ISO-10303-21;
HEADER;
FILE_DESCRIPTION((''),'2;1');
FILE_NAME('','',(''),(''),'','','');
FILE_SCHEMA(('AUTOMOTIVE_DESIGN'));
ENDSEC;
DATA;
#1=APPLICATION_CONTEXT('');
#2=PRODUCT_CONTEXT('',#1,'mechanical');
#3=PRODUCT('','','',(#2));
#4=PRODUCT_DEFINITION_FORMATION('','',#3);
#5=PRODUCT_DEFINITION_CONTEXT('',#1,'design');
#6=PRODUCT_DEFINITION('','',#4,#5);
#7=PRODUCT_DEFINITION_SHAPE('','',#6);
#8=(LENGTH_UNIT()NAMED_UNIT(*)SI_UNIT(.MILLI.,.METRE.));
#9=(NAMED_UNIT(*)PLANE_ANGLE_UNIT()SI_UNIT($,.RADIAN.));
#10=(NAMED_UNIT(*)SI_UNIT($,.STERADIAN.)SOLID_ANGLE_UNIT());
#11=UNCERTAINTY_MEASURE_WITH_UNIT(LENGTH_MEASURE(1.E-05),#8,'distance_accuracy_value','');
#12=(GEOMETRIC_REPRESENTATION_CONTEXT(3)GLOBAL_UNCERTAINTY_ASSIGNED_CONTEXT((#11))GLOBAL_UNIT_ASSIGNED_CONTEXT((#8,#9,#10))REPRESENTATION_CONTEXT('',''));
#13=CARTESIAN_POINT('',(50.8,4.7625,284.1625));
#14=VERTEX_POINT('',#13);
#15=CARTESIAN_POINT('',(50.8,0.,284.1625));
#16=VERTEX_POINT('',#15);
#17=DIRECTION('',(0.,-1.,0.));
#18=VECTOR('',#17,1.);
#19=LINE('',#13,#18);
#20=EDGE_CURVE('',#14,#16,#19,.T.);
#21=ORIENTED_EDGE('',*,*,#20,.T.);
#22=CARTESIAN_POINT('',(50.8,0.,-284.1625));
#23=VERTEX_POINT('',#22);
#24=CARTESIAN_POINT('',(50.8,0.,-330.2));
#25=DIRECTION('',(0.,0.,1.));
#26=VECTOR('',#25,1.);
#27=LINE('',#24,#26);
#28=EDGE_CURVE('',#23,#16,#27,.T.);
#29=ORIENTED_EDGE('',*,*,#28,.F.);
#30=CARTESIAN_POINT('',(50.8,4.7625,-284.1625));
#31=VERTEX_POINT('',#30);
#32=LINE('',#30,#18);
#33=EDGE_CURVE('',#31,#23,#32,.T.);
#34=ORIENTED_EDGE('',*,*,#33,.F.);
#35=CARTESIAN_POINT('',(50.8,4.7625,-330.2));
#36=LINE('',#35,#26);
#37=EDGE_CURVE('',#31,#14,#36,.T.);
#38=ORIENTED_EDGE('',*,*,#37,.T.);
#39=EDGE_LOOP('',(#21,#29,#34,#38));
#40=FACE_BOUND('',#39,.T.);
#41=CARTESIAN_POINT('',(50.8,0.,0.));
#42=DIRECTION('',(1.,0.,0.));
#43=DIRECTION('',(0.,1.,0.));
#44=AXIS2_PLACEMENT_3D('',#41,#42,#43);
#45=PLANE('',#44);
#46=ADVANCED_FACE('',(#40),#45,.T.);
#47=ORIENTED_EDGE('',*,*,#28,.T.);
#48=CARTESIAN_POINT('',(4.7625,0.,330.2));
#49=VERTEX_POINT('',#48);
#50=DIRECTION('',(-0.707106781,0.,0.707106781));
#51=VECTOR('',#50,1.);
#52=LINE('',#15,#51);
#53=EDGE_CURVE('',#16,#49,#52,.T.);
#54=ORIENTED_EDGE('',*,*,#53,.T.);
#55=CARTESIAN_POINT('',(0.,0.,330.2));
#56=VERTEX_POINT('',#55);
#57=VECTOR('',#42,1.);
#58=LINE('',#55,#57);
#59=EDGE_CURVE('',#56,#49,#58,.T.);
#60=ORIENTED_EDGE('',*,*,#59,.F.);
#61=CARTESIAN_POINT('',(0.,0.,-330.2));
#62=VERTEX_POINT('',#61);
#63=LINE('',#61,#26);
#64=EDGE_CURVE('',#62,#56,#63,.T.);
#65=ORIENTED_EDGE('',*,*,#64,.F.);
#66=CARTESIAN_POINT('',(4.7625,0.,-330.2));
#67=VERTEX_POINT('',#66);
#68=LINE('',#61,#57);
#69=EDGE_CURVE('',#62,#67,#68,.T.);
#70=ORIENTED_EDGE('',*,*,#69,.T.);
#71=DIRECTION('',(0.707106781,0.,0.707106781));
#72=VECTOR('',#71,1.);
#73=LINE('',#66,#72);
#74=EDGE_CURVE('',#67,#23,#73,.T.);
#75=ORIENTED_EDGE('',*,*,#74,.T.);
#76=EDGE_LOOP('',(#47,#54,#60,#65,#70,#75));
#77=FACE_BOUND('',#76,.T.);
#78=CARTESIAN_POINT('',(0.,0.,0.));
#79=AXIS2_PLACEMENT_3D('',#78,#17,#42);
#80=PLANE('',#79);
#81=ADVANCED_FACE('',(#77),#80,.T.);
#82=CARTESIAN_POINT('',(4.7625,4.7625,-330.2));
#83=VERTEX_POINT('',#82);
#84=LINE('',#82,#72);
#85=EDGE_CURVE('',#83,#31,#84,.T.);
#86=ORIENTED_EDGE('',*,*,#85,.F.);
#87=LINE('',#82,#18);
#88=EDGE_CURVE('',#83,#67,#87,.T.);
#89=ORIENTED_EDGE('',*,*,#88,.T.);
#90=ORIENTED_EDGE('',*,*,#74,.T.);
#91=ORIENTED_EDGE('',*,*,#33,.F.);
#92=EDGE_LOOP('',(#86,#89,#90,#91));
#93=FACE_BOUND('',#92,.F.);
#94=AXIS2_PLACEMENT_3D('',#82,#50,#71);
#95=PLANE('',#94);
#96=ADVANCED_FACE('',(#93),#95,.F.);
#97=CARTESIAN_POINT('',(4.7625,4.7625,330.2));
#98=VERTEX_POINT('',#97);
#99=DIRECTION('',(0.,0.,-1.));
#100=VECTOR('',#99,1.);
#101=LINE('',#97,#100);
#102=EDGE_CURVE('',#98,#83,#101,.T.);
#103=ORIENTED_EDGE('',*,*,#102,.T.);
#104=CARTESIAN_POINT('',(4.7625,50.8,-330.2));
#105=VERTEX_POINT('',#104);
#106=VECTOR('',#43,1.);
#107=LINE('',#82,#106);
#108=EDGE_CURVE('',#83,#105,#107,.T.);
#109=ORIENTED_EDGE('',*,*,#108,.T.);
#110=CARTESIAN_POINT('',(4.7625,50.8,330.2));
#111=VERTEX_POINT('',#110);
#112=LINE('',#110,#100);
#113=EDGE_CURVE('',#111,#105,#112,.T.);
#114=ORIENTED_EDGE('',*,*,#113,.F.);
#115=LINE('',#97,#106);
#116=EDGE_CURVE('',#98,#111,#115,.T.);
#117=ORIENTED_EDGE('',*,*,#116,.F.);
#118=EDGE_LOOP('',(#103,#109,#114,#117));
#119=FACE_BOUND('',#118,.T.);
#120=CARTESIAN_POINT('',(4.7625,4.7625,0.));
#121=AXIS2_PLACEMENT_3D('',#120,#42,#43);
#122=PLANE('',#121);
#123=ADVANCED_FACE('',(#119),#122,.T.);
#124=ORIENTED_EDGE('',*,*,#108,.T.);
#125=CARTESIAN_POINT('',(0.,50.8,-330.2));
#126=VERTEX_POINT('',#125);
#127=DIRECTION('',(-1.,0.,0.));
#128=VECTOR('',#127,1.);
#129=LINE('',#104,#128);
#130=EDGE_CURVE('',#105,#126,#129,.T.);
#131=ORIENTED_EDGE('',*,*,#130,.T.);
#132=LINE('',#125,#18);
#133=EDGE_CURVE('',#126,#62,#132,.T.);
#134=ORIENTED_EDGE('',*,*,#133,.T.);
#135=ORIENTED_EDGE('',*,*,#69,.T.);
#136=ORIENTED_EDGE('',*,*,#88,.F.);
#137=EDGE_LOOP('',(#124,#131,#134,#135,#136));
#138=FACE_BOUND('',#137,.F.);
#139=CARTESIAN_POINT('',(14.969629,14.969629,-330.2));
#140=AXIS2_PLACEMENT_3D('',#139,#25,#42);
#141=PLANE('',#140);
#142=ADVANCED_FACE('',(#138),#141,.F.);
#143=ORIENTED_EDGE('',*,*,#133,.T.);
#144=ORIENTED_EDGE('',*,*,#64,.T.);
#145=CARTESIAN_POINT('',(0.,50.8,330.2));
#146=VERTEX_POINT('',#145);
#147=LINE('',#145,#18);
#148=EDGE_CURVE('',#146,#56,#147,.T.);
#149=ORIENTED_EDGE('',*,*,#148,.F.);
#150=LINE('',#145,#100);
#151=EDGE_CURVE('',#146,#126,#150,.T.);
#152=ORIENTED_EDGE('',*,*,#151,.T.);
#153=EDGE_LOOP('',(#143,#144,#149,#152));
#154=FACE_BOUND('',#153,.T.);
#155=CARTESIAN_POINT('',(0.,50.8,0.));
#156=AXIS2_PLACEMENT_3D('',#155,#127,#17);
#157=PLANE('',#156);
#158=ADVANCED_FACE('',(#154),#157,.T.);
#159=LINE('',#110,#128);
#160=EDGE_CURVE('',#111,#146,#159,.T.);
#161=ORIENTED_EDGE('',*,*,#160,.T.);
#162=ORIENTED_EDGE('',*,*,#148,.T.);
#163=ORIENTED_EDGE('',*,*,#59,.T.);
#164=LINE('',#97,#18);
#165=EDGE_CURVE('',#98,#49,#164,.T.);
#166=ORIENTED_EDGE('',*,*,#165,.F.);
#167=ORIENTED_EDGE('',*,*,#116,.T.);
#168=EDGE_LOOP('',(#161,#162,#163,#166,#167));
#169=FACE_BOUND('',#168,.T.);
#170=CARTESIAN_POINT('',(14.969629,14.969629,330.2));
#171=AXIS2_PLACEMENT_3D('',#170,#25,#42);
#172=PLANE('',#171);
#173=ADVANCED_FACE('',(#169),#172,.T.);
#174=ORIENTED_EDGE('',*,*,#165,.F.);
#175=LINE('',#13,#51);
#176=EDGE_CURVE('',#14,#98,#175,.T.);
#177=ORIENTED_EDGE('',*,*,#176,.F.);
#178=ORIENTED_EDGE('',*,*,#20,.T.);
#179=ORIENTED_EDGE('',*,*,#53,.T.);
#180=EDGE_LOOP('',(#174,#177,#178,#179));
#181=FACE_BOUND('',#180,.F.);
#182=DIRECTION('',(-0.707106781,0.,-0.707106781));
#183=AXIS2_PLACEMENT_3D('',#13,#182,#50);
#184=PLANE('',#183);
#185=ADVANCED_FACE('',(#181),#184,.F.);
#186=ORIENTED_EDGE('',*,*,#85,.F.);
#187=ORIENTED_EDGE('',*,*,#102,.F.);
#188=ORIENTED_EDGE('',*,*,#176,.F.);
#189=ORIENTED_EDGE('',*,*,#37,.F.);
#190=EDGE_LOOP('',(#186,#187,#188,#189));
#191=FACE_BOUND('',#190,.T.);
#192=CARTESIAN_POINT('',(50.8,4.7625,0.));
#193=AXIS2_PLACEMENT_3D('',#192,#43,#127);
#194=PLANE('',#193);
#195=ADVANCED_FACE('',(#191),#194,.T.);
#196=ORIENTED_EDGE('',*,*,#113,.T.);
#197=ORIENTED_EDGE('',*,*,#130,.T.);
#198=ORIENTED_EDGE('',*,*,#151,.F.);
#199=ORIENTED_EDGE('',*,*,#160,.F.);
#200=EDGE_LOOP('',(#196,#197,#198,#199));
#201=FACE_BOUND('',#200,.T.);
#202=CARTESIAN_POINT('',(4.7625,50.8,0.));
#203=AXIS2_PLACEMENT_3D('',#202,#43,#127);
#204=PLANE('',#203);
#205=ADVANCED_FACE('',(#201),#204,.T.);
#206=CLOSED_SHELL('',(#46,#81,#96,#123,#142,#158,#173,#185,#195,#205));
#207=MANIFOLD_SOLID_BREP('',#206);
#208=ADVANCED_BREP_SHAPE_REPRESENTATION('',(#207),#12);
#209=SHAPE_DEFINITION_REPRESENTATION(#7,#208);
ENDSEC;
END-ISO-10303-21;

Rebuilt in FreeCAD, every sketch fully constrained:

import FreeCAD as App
import Part
import Sketcher

V = App.Vector
Q = App.Units.Quantity


def add_polygon(sketch, points):
    """Adds a closed chain of lines whose ends are joined by coincident constraints."""
    first, n = sketch.GeometryCount, len(points)
    for a, b in zip(points, points[1:] + points[:1]):
        sketch.addGeometry(Part.LineSegment(App.Vector(*a, 0), App.Vector(*b, 0)), False)
    for i in range(n):
        sketch.addConstraint(Sketcher.Constraint("Coincident", first + i, 2, first + (i + 1) % n, 1))

doc = App.newDocument("Part")
body = doc.addObject("PartDesign::Body", "Body")

# Sketch on XY plane
sketch1 = body.newObject("Sketcher::SketchObject", "Sketch")
sketch1.AttachmentSupport = (doc.getObject("XY_Plane"), [""])
sketch1.MapMode = "FlatFace"
add_polygon(sketch1, [(0, 50.8), (0, 0), (50.8, 0), (50.8, 4.8), (4.8, 4.8), (4.8, 50.8)])  # lines 0-5
sketch1.addConstraint([
    Sketcher.Constraint("Vertical", 0),
    Sketcher.Constraint("Horizontal", 1),
    Sketcher.Constraint("Vertical", 2),
    Sketcher.Constraint("Horizontal", 3),
    Sketcher.Constraint("Vertical", 4),
    Sketcher.Constraint("Horizontal", 5),
    Sketcher.Constraint("Coincident", 0, 2, -1, 1),
    Sketcher.Constraint("Equal", 1, 0),
    Sketcher.Constraint("Equal", 5, 2),
    Sketcher.Constraint("DistanceX", 1, 1, 1, 2, Q("2 in")),
    Sketcher.Constraint("DistanceX", 3, 2, 3, 1, Q("1.8125 in")),
])
pad1 = body.newObject("PartDesign::Pad", "Pad")
pad1.Profile = sketch1
pad1.Length = Q("26 in")
pad1.Midplane = True

# Sketch on XZ plane
sketch2 = body.newObject("Sketcher::SketchObject", "Sketch001")
sketch2.AttachmentSupport = (doc.getObject("XZ_Plane"), [""])
sketch2.MapMode = "FlatFace"
sketch2.AttachmentOffset = App.Placement(V(0, 0, -0.1875 * 25.4), App.Rotation())
add_polygon(sketch2, [(51, 284), (5, 330), (51, 330)])  # lines 0-2
add_polygon(sketch2, [(51, -330), (5, -330), (51, -284)])  # lines 3-5
sketch2.addConstraint([
    Sketcher.Constraint("Horizontal", 1),
    Sketcher.Constraint("Vertical", 2),
    Sketcher.Constraint("Horizontal", 3),
    Sketcher.Constraint("Vertical", 5),
    Sketcher.Constraint("Symmetric", 0, 2, 3, 2, -1),
    Sketcher.Constraint("Symmetric", 2, 2, 4, 2, -1),
    Sketcher.Constraint("Perpendicular", 0, 4),
    Sketcher.Constraint("DistanceY", -1, 1, 0, 2, Q("13 in")),
    Sketcher.Constraint("DistanceX", -1, 1, 1, 2, Q("2 in")),
    Sketcher.Constraint("DistanceX", 1, 1, 1, 2, Q("1.8125 in")),
])
pocket1 = body.newObject("PartDesign::Pocket", "Pocket")
pocket1.Profile = sketch2
pocket1.Type = "ThroughAll"
pocket1.Reversed = True

doc.recompute()
